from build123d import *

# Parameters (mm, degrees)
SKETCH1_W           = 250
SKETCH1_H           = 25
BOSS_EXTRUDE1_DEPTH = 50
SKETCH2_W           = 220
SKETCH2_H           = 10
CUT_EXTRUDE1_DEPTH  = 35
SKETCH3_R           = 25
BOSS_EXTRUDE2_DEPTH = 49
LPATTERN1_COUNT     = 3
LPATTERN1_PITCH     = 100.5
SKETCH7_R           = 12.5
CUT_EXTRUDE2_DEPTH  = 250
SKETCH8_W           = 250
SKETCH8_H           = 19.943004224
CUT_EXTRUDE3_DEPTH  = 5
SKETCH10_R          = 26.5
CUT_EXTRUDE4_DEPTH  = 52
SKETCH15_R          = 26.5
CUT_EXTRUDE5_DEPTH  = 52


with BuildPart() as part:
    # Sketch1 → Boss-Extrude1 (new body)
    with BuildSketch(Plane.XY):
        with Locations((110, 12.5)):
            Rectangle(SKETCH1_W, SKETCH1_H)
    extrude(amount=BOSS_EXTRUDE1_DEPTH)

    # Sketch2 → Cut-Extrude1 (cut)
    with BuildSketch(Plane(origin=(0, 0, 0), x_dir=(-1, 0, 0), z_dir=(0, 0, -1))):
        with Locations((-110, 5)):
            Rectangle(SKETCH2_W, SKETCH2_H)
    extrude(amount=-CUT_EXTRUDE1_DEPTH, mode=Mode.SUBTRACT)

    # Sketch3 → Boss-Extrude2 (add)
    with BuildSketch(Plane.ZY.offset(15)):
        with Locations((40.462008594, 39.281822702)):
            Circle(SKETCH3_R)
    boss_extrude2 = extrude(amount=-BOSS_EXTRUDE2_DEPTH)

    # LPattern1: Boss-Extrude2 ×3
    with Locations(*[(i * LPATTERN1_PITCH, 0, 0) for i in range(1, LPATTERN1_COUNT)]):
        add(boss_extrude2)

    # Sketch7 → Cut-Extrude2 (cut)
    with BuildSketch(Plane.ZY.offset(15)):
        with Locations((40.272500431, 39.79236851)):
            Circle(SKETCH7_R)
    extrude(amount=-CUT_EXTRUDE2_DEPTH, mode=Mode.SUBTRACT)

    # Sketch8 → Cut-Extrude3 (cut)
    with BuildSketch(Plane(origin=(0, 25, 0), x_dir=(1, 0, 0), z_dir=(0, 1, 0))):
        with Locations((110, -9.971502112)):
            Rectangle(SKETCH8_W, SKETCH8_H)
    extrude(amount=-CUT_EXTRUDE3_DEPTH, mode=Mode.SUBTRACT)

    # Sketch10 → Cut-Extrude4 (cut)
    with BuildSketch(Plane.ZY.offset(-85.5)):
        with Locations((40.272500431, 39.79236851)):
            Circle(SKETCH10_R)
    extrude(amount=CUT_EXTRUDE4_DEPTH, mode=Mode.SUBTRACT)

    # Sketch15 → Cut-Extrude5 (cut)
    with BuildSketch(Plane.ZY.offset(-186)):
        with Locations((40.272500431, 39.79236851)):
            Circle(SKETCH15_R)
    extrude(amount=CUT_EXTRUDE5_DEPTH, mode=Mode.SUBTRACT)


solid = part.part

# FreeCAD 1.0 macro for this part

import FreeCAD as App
import Part
import Sketcher

V = App.Vector
Q = App.Units.Quantity


def add_polygon(sketch, points):
    """Adds a closed chain of lines whose ends are joined by coincident constraints."""
    first, n = sketch.GeometryCount, len(points)
    for a, b in zip(points, points[1:] + points[:1]):
        sketch.addGeometry(Part.LineSegment(App.Vector(*a, 0), App.Vector(*b, 0)), False)
    for i in range(n):
        sketch.addConstraint(Sketcher.Constraint("Coincident", first + i, 2, first + (i + 1) % n, 1))

doc = App.newDocument("Part")
body = doc.addObject("PartDesign::Body", "Body")

sketch1 = doc.addObject("Sketcher::SketchObject", "Sketch")
body.addObject(sketch1)
sketch1.AttachmentSupport = (doc.XY_Plane, [""])
sketch1.MapMode = "FlatFace"
add_polygon(sketch1, [(-15, 25), (-15, 0), (235, 0), (235, 25)])
sketch1.addConstraint([
    Sketcher.Constraint("Vertical", 0),
    Sketcher.Constraint("Horizontal", 1),
    Sketcher.Constraint("Vertical", 2),
    Sketcher.Constraint("Horizontal", 3),
    Sketcher.Constraint("PointOnObject", 0, 2, -1),
    Sketcher.Constraint("DistanceX", 1, 1, 1, 2, Q("250 mm")),
    Sketcher.Constraint("DistanceY", 0, 2, 0, 1, Q("25 mm")),
    Sketcher.Constraint("DistanceX", 0, 2, -1, 1, Q("15 mm")),
])
pad1 = doc.addObject("PartDesign::Pad", "Pad")
body.addObject(pad1)
pad1.Profile = sketch1
pad1.Length = 50

sketch2 = doc.addObject("Sketcher::SketchObject", "Sketch001")
body.addObject(sketch2)
sketch2.AttachmentSupport = (doc.XY_Plane, [""])
sketch2.MapMode = "FlatFace"
add_polygon(sketch2, [(220, 10), (220, 0), (0, 0), (0, 10)])
sketch2.addConstraint([
    Sketcher.Constraint("Vertical", 0),
    Sketcher.Constraint("Horizontal", 1),
    Sketcher.Constraint("Vertical", 2),
    Sketcher.Constraint("Horizontal", 3),
    Sketcher.Constraint("Coincident", 1, 2, -1, 1),
    Sketcher.Constraint("DistanceX", 1, 2, 1, 1, Q("220 mm")),
    Sketcher.Constraint("DistanceY", 0, 2, 0, 1, Q("10 mm")),
])
pocket1 = doc.addObject("PartDesign::Pocket", "Pocket")
body.addObject(pocket1)
pocket1.Profile = sketch2
pocket1.Length = 35
pocket1.Reversed = True

sketch3 = doc.addObject("Sketcher::SketchObject", "Sketch002")
body.addObject(sketch3)
sketch3.AttachmentSupport = (doc.YZ_Plane, [""])
sketch3.MapMode = "FlatFace"
sketch3.AttachmentOffset = App.Placement(V(0, 0, -15), App.Rotation())
sketch3.addGeometry(Part.Circle(V(39, 40, 0), V(0, 0, 1), 25), False)
sketch3.addConstraint([
    Sketcher.Constraint("Diameter", 0, Q("50 mm")),
    Sketcher.Constraint("DistanceY", -1, 1, 0, 3, Q("40.462009 mm")),
    Sketcher.Constraint("DistanceX", -1, 1, 0, 3, Q("39.281823 mm")),
])
pad2 = doc.addObject("PartDesign::Pad", "Pad001")
body.addObject(pad2)
pad2.Profile = sketch3
pad2.Length = 49
doc.recompute()

linearpattern = doc.addObject("PartDesign::LinearPattern", "LinearPattern")
body.addObject(linearpattern)
linearpattern.Originals = [pad2]
linearpattern.Direction = (doc.X_Axis, [""])
linearpattern.Mode = "offset"
linearpattern.Offset = 100.5
linearpattern.Occurrences = 3
body.Tip = linearpattern

sketch4 = doc.addObject("Sketcher::SketchObject", "Sketch003")
body.addObject(sketch4)
sketch4.AttachmentSupport = (doc.YZ_Plane, [""])
sketch4.MapMode = "FlatFace"
sketch4.AttachmentOffset = App.Placement(V(0, 0, -15), App.Rotation())
sketch4.addGeometry(Part.Circle(V(40, 40, 0), V(0, 0, 1), 12), False)
sketch4.addConstraint([
    Sketcher.Constraint("Diameter", 0, Q("25 mm")),
    Sketcher.Constraint("DistanceY", -1, 1, 0, 3, Q("40.2725 mm")),
    Sketcher.Constraint("DistanceX", -1, 1, 0, 3, Q("39.792369 mm")),
])
pocket2 = doc.addObject("PartDesign::Pocket", "Pocket001")
body.addObject(pocket2)
pocket2.Profile = sketch4
pocket2.Length = 250
pocket2.Reversed = True

sketch5 = doc.addObject("Sketcher::SketchObject", "Sketch004")
body.addObject(sketch5)
sketch5.AttachmentSupport = (doc.XZ_Plane, [""])
sketch5.MapMode = "FlatFace"
sketch5.AttachmentOffset = App.Placement(V(0, 0, -25), App.Rotation())
add_polygon(sketch5, [(-15, 0), (-15, 20), (235, 20), (235, 0)])
sketch5.addConstraint([
    Sketcher.Constraint("Vertical", 0),
    Sketcher.Constraint("Horizontal", 1),
    Sketcher.Constraint("Vertical", 2),
    Sketcher.Constraint("Horizontal", 3),
    Sketcher.Constraint("PointOnObject", 2, 2, -1),
    Sketcher.Constraint("DistanceX", 1, 1, 1, 2, Q("250 mm")),
    Sketcher.Constraint("DistanceX", 0, 2, -1, 1, Q("15 mm")),
    Sketcher.Constraint("DistanceY", 0, 1, 0, 2, Q("19.943004 mm")),
])
pocket3 = doc.addObject("PartDesign::Pocket", "Pocket002")
body.addObject(pocket3)
pocket3.Profile = sketch5
pocket3.Length = 5
pocket3.Reversed = True

sketch6 = doc.addObject("Sketcher::SketchObject", "Sketch005")
body.addObject(sketch6)
sketch6.AttachmentSupport = (doc.YZ_Plane, [""])
sketch6.MapMode = "FlatFace"
sketch6.AttachmentOffset = App.Placement(V(0, 0, 85.5), App.Rotation())
sketch6.addGeometry(Part.Circle(V(40, 40, 0), V(0, 0, 1), 26), False)
sketch6.addConstraint([
    Sketcher.Constraint("Diameter", 0, Q("53 mm")),
    Sketcher.Constraint("DistanceY", -1, 1, 0, 3, Q("40.2725 mm")),
    Sketcher.Constraint("DistanceX", -1, 1, 0, 3, Q("39.792369 mm")),
])
pocket4 = doc.addObject("PartDesign::Pocket", "Pocket003")
body.addObject(pocket4)
pocket4.Profile = sketch6
pocket4.Length = 52

sketch7 = doc.addObject("Sketcher::SketchObject", "Sketch006")
body.addObject(sketch7)
sketch7.AttachmentSupport = (doc.YZ_Plane, [""])
sketch7.MapMode = "FlatFace"
sketch7.AttachmentOffset = App.Placement(V(0, 0, 186), App.Rotation())
sketch7.addGeometry(Part.Circle(V(40, 40, 0), V(0, 0, 1), 26), False)
sketch7.addConstraint([
    Sketcher.Constraint("Diameter", 0, Q("53 mm")),
    Sketcher.Constraint("DistanceY", -1, 1, 0, 3, Q("40.2725 mm")),
    Sketcher.Constraint("DistanceX", -1, 1, 0, 3, Q("39.792369 mm")),
])
pocket5 = doc.addObject("PartDesign::Pocket", "Pocket004")
body.addObject(pocket5)
pocket5.Profile = sketch7
pocket5.Length = 52

doc.recompute()
